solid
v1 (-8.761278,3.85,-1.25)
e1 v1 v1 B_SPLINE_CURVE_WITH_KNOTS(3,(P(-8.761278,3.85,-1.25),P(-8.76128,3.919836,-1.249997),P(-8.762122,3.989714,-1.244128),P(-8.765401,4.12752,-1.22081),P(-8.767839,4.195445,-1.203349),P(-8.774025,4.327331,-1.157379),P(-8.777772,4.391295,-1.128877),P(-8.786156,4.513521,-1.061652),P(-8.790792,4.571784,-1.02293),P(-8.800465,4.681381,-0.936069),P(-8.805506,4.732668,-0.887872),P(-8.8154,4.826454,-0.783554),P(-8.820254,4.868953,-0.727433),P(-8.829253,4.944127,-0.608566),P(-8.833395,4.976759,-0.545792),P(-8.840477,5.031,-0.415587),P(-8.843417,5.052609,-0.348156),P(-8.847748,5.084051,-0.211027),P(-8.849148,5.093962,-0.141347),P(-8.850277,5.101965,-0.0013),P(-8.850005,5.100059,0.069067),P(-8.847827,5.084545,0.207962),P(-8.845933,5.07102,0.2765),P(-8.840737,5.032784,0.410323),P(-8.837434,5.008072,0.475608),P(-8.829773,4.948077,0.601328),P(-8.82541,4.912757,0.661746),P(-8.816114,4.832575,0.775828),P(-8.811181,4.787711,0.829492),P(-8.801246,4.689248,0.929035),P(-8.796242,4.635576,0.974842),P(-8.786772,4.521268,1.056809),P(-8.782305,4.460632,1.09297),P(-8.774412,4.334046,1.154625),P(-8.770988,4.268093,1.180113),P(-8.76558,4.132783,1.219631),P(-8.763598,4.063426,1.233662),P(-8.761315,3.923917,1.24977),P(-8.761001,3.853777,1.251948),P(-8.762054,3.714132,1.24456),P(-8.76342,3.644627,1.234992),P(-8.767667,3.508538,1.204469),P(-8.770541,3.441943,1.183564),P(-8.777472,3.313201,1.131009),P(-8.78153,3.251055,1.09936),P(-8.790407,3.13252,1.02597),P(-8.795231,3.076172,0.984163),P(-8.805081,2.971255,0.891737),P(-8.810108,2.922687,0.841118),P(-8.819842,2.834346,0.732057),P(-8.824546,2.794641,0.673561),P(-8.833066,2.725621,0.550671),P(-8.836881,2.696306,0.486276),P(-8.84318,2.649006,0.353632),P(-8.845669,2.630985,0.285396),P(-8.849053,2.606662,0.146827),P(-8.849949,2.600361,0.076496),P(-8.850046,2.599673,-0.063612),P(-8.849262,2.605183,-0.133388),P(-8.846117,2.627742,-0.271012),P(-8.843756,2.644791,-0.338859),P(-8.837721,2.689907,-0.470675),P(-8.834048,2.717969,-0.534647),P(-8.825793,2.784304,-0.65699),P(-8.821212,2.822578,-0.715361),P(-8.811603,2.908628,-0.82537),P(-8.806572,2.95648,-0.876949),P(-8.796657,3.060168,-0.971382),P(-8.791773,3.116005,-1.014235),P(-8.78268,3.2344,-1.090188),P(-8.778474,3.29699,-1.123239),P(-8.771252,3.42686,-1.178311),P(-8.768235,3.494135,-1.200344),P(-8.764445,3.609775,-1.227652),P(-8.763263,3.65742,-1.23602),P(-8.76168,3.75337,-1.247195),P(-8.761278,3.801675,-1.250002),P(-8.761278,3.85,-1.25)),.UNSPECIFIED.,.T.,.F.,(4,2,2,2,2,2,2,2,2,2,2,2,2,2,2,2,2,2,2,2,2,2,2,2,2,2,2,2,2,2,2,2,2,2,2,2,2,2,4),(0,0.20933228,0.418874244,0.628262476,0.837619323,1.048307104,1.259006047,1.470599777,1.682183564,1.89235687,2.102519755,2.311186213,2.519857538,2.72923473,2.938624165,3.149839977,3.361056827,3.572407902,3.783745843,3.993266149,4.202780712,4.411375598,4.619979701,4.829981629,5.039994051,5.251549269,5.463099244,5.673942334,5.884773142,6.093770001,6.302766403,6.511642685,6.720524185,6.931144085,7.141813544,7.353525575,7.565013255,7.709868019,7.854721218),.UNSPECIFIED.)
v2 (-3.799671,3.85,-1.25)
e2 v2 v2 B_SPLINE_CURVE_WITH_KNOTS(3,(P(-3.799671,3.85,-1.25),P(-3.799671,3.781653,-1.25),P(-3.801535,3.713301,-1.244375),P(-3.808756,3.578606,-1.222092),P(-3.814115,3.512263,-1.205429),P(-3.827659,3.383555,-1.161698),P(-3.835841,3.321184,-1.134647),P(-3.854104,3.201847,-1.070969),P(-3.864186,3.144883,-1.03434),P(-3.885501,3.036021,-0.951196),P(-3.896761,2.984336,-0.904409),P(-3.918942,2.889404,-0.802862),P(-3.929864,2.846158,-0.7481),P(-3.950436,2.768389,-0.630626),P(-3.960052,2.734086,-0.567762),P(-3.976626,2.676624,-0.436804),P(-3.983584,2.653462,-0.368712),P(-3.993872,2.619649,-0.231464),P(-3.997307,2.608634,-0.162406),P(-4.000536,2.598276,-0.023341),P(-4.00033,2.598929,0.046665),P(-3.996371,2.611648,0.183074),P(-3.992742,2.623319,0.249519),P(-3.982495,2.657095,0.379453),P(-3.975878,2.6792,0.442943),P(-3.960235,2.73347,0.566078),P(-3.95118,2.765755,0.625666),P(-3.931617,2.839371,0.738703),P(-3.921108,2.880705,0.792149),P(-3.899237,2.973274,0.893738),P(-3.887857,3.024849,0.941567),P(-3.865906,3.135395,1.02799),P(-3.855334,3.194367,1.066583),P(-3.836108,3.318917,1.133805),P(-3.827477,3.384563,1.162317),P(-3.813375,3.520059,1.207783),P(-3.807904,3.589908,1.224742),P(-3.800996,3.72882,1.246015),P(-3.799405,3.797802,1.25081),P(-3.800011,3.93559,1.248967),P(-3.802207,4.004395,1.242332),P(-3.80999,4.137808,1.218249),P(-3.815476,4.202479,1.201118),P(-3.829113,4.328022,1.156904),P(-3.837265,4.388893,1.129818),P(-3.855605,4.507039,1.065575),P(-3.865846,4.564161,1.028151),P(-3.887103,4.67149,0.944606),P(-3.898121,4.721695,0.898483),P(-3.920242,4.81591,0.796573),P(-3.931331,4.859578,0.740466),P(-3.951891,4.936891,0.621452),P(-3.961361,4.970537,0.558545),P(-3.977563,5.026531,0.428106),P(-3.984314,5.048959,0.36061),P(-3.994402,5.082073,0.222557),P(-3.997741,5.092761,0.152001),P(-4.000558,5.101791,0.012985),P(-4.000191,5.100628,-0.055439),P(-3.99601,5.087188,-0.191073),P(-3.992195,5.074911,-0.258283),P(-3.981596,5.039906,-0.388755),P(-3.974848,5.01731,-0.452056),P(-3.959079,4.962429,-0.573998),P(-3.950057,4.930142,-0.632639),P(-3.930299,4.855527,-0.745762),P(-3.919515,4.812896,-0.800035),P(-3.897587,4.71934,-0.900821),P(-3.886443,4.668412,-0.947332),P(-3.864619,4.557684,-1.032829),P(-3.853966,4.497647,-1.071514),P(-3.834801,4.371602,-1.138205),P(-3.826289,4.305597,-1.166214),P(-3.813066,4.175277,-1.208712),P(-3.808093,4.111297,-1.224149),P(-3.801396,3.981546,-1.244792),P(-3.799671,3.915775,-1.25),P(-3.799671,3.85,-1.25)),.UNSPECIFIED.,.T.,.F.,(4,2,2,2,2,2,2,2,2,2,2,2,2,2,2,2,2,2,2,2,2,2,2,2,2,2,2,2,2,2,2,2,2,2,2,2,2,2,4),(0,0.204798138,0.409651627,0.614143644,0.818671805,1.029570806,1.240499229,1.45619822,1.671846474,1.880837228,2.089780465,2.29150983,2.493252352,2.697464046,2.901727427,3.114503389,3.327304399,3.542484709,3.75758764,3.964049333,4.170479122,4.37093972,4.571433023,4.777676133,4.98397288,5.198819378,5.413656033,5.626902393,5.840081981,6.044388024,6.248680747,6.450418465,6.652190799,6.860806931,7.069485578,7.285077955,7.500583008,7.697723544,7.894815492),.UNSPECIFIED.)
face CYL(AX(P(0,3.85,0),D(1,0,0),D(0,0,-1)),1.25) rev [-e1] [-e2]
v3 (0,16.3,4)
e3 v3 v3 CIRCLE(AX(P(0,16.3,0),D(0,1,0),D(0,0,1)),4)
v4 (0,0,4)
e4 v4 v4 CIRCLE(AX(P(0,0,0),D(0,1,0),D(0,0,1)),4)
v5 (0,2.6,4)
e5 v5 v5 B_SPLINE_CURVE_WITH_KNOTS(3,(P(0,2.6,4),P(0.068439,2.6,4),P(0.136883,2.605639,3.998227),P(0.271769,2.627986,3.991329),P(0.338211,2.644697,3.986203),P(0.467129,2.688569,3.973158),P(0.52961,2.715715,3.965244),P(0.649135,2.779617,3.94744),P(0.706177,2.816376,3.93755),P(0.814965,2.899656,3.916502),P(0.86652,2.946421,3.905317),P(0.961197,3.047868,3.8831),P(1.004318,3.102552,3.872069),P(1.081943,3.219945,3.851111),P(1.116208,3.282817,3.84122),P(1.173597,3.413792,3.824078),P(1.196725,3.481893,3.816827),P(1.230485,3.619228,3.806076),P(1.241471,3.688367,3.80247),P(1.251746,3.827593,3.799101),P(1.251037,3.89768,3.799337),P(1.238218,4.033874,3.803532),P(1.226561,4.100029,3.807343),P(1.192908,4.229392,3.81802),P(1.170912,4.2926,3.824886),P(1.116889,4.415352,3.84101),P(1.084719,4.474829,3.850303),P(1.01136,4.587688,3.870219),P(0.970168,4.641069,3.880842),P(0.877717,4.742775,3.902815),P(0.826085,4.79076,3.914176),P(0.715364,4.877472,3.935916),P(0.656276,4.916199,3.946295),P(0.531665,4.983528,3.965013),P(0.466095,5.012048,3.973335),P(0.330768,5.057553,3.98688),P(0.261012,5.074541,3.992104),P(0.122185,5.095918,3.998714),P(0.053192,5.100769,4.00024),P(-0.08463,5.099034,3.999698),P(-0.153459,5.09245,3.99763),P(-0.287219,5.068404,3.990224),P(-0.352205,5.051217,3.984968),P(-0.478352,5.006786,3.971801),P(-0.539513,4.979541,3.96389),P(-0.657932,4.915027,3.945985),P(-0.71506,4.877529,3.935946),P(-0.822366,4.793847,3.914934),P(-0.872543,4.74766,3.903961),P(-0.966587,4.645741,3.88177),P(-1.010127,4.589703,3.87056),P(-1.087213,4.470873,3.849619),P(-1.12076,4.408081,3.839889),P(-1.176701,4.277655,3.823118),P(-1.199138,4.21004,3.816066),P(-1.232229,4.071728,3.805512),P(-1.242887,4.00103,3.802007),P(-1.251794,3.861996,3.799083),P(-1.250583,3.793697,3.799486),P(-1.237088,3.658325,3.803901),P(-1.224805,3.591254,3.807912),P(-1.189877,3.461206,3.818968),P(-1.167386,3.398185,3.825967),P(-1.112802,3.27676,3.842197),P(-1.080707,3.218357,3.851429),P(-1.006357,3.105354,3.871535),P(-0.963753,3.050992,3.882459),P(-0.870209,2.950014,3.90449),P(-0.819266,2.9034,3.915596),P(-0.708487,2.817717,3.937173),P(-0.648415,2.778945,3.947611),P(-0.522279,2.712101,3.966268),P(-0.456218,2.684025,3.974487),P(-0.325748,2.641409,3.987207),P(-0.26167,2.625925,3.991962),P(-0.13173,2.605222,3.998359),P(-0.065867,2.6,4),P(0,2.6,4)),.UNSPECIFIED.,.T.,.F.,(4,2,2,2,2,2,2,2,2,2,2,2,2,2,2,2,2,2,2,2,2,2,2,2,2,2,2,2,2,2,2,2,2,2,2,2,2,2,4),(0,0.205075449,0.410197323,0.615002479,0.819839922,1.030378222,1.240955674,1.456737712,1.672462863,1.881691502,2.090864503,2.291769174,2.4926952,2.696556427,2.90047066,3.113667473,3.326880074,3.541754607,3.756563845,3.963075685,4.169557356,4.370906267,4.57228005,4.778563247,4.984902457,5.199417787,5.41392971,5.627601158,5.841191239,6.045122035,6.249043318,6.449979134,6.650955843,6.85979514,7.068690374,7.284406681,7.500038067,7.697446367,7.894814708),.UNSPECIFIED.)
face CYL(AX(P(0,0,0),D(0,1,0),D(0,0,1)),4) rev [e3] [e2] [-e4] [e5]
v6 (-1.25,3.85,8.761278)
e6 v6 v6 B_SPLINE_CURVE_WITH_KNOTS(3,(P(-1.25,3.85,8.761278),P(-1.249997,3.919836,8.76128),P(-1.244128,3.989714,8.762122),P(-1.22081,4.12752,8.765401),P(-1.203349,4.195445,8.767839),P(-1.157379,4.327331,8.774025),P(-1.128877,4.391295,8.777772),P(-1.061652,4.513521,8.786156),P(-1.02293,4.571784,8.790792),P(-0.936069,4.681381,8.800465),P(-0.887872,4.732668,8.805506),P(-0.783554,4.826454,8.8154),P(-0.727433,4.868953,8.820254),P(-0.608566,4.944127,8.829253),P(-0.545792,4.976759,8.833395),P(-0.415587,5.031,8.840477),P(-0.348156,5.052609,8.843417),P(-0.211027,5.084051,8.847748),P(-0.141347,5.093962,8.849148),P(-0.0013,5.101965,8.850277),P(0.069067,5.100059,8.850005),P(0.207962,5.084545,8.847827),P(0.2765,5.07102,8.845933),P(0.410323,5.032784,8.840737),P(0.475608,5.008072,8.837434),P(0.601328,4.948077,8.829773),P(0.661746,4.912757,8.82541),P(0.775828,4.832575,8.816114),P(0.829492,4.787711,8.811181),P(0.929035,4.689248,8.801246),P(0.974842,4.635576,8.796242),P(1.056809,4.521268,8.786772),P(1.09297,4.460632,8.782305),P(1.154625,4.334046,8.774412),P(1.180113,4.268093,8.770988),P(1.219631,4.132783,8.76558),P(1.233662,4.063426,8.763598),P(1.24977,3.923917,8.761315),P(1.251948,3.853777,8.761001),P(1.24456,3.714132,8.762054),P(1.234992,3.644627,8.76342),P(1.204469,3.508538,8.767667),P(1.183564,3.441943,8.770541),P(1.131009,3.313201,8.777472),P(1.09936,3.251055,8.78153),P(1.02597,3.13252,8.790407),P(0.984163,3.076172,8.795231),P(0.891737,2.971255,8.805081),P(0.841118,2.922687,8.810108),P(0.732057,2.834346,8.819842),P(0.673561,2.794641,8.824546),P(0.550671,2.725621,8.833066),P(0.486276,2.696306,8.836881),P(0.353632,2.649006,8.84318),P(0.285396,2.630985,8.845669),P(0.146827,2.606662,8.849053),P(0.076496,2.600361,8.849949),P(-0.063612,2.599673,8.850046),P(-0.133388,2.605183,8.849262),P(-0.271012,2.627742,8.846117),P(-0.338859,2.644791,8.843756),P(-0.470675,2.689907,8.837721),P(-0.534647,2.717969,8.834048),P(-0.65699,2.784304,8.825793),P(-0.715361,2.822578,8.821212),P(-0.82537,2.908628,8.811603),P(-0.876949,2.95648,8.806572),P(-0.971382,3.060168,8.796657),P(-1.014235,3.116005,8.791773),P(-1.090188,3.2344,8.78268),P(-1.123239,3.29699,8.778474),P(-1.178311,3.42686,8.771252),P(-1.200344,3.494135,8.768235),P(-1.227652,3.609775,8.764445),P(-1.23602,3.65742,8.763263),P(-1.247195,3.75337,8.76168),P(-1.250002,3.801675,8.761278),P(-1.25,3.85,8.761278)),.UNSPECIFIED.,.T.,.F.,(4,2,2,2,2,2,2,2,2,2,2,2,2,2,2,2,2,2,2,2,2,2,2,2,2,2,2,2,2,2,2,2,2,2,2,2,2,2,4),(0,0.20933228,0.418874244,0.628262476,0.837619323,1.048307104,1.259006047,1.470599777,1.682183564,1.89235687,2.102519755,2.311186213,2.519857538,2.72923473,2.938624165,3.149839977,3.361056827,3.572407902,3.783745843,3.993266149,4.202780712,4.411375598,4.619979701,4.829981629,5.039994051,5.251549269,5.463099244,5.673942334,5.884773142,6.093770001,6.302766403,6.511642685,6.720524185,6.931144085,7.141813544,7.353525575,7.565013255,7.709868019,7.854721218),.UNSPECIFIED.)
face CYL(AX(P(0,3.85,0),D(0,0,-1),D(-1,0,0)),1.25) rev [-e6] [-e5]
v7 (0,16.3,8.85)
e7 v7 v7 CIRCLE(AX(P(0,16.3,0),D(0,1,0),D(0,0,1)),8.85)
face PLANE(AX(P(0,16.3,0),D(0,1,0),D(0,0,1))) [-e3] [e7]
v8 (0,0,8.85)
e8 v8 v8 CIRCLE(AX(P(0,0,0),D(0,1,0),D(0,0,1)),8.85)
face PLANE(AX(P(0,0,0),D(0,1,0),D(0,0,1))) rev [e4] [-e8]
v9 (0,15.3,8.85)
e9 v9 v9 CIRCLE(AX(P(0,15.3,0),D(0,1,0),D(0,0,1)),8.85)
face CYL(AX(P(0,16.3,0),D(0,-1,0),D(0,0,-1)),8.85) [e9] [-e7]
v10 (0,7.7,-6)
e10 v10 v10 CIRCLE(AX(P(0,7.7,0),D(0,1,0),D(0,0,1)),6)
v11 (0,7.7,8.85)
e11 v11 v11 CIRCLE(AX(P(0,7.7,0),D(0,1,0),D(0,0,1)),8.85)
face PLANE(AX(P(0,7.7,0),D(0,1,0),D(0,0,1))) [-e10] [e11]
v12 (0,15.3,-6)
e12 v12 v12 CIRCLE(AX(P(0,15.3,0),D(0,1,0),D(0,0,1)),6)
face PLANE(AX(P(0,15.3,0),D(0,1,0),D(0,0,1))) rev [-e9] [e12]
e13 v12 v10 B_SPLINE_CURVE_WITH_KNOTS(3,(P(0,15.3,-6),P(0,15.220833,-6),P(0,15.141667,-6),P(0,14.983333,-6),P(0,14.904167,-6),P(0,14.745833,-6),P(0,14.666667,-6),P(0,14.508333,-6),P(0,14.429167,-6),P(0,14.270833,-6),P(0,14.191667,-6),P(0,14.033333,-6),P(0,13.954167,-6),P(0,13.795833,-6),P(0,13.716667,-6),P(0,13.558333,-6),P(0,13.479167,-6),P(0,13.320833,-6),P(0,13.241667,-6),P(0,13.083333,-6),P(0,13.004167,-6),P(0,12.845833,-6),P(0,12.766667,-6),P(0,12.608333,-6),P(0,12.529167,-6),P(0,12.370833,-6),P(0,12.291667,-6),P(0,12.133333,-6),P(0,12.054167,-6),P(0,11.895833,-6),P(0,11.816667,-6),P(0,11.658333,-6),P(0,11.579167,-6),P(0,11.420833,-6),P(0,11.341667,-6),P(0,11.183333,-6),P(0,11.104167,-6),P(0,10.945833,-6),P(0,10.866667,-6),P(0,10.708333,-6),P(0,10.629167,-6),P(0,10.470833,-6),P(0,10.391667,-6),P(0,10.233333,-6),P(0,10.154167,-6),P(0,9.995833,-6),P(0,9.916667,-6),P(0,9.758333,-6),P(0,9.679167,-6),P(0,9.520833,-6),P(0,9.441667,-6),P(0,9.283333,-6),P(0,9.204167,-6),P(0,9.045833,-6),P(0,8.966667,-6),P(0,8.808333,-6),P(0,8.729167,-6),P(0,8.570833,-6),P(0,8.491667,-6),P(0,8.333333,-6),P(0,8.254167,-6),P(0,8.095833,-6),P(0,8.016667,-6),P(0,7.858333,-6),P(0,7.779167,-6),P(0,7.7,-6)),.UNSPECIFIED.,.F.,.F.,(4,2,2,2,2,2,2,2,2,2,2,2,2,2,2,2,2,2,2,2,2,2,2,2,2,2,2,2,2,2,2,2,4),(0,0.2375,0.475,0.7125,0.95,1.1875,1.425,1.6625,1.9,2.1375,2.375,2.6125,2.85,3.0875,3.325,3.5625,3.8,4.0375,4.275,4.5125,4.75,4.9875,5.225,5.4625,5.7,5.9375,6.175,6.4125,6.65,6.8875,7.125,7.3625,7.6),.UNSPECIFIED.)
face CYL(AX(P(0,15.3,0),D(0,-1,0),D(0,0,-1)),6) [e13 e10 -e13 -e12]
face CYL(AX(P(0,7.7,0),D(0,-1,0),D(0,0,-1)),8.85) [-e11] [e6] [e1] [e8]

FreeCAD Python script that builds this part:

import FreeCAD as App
import Part
import Sketcher

V = App.Vector


def add_polygon(sketch, points):
    """Adds a closed chain of lines whose ends are joined by coincident constraints."""
    first, n = sketch.GeometryCount, len(points)
    for a, b in zip(points, points[1:] + points[:1]):
        sketch.addGeometry(Part.LineSegment(App.Vector(*a, 0), App.Vector(*b, 0)), False)
    for i in range(n):
        sketch.addConstraint(Sketcher.Constraint("Coincident", first + i, 2, first + (i + 1) % n, 1))

doc = App.newDocument("Part")
body = doc.addObject("PartDesign::Body", "Body")

# Sketch on XZ plane
sketch1 = body.newObject("Sketcher::SketchObject", "Sketch")
sketch1.AttachmentSupport = (doc.getObject("XZ_Plane"), [""])
sketch1.MapMode = "FlatFace"
sketch1.addGeometry(Part.Circle(V(0, 0, 0), V(0, 0, 1), 8.85), False)
sketch1.addConstraint([
    Sketcher.Constraint("Coincident", 0, 3, -1, 1),
    Sketcher.Constraint("Diameter", 0, 17.7),
])
pad1 = body.newObject("PartDesign::Pad", "Pad")
pad1.Profile = sketch1
pad1.Length = 7.7
pad1.Reversed = True

# Sketch on XZ plane
sketch2 = body.newObject("Sketcher::SketchObject", "Sketch001")
sketch2.AttachmentSupport = (doc.getObject("XZ_Plane"), [""])
sketch2.MapMode = "FlatFace"
sketch2.AttachmentOffset = App.Placement(V(0, 0, -7.7), App.Rotation())
sketch2.addGeometry(Part.Circle(V(0, 0, 0), V(0, 0, 1), 6), False)
sketch2.addConstraint([
    Sketcher.Constraint("Coincident", 0, 3, -1, 1),
    Sketcher.Constraint("Diameter", 0, 12.0),
])
pad2 = body.newObject("PartDesign::Pad", "Pad001")
pad2.Profile = sketch2
pad2.Length = 7.6
pad2.Reversed = True

# Sketch on XZ plane
sketch3 = body.newObject("Sketcher::SketchObject", "Sketch002")
sketch3.AttachmentSupport = (doc.getObject("XZ_Plane"), [""])
sketch3.MapMode = "FlatFace"
sketch3.AttachmentOffset = App.Placement(V(0, 0, -15.3), App.Rotation())
sketch3.addGeometry(Part.Circle(V(0, 0, 0), V(0, 0, 1), 8.85), False)
sketch3.addConstraint([
    Sketcher.Constraint("Coincident", 0, 3, -1, 1),
    Sketcher.Constraint("Diameter", 0, 17.7),
])
pad3 = body.newObject("PartDesign::Pad", "Pad002")
pad3.Profile = sketch3
pad3.Length = 1
pad3.Reversed = True

# Sketch on XZ plane
sketch4 = body.newObject("Sketcher::SketchObject", "Sketch003")
sketch4.AttachmentSupport = (doc.getObject("XZ_Plane"), [""])
sketch4.MapMode = "FlatFace"
sketch4.AttachmentOffset = App.Placement(V(0, 0, -16.3), App.Rotation())
sketch4.addGeometry(Part.Circle(V(0, 0, 0), V(0, 0, 1), 4), False)
sketch4.addConstraint([
    Sketcher.Constraint("Coincident", 0, 3, -1, 1),
    Sketcher.Constraint("Diameter", 0, 8.0),
])
pocket1 = body.newObject("PartDesign::Pocket", "Pocket")
pocket1.Profile = sketch4
pocket1.Type = "ThroughAll"
pocket1.Reversed = True

# Sketch on YZ plane
sketch5 = body.newObject("Sketcher::SketchObject", "Sketch004")
sketch5.AttachmentSupport = (doc.getObject("YZ_Plane"), [""])
sketch5.MapMode = "FlatFace"
add_polygon(sketch5, [(3.85, 8.851), (3.85, 0), (5.1, 0), (5.1, 8.851)])  # lines 0-3
sketch5.addGeometry(Part.LineSegment(V(3.85, 0, 0), V(3.85, 8.851, 0)), True)  # axis
sketch5.addConstraint([
    Sketcher.Constraint("Vertical", 0),
    Sketcher.Constraint("Horizontal", 1),
    Sketcher.Constraint("Vertical", 2),
    Sketcher.Constraint("Horizontal", 3),
    Sketcher.Constraint("Vertical", 4),
    Sketcher.Constraint("Coincident", 4, 1, 0, 2),
    Sketcher.Constraint("PointOnObject", 0, 2, -1),
    Sketcher.Constraint("Horizontal", 2, 2, 4, 2),
    Sketcher.Constraint("DistanceX", 1, 1, 1, 2, 1.25),
    Sketcher.Constraint("DistanceX", -1, 1, 1, 2, 5.1),
    Sketcher.Constraint("DistanceY", 0, 2, 0, 1, 8.851),
])
groove = body.newObject("PartDesign::Groove", "Groove")
groove.Profile = sketch5
groove.ReferenceAxis = (sketch5, ["Axis0"])
groove.Angle = 360
doc.recompute()

polarpattern = body.newObject("PartDesign::PolarPattern", "PolarPattern")
polarpattern.Originals = [groove]
polarpattern.Axis = (doc.getObject("Y_Axis"), [""])
polarpattern.Angle = 90
polarpattern.Occurrences = 2
polarpattern.Reversed = True
body.Tip = polarpattern

doc.recompute()
